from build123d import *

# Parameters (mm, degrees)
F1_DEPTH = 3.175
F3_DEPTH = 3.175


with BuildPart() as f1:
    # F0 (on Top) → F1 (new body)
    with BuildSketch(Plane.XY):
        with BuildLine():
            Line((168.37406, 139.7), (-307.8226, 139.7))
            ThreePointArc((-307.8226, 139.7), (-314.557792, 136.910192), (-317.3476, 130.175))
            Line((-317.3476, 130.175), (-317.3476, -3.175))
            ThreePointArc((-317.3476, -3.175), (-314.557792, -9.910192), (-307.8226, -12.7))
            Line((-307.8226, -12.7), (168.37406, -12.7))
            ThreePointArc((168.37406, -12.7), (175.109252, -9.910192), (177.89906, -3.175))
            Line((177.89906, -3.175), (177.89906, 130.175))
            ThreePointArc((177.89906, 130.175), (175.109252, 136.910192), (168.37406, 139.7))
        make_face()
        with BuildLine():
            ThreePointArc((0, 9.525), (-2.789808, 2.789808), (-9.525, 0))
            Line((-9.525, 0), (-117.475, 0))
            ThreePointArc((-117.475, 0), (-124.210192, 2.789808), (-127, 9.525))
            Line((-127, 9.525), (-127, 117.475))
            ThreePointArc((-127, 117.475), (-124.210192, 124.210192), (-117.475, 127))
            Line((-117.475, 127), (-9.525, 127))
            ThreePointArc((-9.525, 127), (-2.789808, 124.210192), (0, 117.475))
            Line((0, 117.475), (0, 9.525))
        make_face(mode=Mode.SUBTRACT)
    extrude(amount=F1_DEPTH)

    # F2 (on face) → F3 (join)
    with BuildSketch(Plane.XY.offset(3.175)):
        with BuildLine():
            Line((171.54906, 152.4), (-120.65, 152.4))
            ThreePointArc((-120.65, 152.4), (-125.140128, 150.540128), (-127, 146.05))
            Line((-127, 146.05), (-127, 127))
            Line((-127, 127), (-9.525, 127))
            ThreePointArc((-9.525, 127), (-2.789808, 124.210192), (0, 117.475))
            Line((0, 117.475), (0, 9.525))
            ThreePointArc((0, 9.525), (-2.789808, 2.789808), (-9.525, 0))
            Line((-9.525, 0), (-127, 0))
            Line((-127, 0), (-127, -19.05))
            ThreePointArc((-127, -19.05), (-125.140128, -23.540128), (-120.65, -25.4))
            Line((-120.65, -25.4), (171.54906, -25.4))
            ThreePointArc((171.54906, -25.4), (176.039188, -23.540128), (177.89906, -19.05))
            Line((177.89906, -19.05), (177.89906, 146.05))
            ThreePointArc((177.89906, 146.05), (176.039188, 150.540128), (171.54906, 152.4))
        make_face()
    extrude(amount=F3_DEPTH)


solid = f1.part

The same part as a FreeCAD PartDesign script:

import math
import FreeCAD as App
import Part
import Sketcher
Q = App.Units.Quantity

doc = App.newDocument("Part")
body = doc.addObject("PartDesign::Body", "Body")

# Sketch on XY plane
sketch1 = body.newObject("Sketcher::SketchObject", "Sketch")
sketch1.AttachmentSupport = (doc.getObject("XY_Plane"), [""])
sketch1.MapMode = "FlatFace"
sketch1.addGeometry([
    Part.LineSegment(App.Vector(168, 140, 0), App.Vector(-308, 140, 0)),  # 0
    Part.ArcOfCircle(Part.Circle(App.Vector(-308, 130, 0), App.Vector(0, 0, 1), 10), math.radians(90), math.radians(180)),  # 1
    Part.LineSegment(App.Vector(-317, 130, 0), App.Vector(-317, -3, 0)),  # 2
    Part.ArcOfCircle(Part.Circle(App.Vector(-308, -3, 0), App.Vector(0, 0, 1), 10), math.radians(-180), math.radians(-90)),  # 3
    Part.LineSegment(App.Vector(-308, -13, 0), App.Vector(168, -13, 0)),  # 4
    Part.ArcOfCircle(Part.Circle(App.Vector(168, -3, 0), App.Vector(0, 0, 1), 10), math.radians(-90), math.radians(0)),  # 5
    Part.LineSegment(App.Vector(178, -3, 0), App.Vector(178, 130, 0)),  # 6
    Part.ArcOfCircle(Part.Circle(App.Vector(168, 130, 0), App.Vector(0, 0, 1), 10), math.radians(0), math.radians(90)),  # 7
    Part.LineSegment(App.Vector(0, 117, 0), App.Vector(0, 10, 0)),  # 8
    Part.ArcOfCircle(Part.Circle(App.Vector(-10, 10, 0), App.Vector(0, 0, 1), 10), math.radians(-90), math.radians(0)),  # 9
    Part.LineSegment(App.Vector(-10, 0, 0), App.Vector(-117, 0, 0)),  # 10
    Part.ArcOfCircle(Part.Circle(App.Vector(-117, 10, 0), App.Vector(0, 0, 1), 10), math.radians(-180), math.radians(-90)),  # 11
    Part.LineSegment(App.Vector(-127, 10, 0), App.Vector(-127, 117, 0)),  # 12
    Part.ArcOfCircle(Part.Circle(App.Vector(-117, 117, 0), App.Vector(0, 0, 1), 10), math.radians(90), math.radians(180)),  # 13
    Part.LineSegment(App.Vector(-117, 127, 0), App.Vector(-10, 127, 0)),  # 14
    Part.ArcOfCircle(Part.Circle(App.Vector(-10, 117, 0), App.Vector(0, 0, 1), 10), math.radians(0), math.radians(90)),  # 15
], False)
sketch1.addConstraint([
    Sketcher.Constraint("Tangent", 0, 2, 1, 1),
    Sketcher.Constraint("Tangent", 1, 2, 2, 1),
    Sketcher.Constraint("Tangent", 2, 2, 3, 1),
    Sketcher.Constraint("Tangent", 3, 2, 4, 1),
    Sketcher.Constraint("Tangent", 4, 2, 5, 1),
    Sketcher.Constraint("Tangent", 5, 2, 6, 1),
    Sketcher.Constraint("Tangent", 6, 2, 7, 1),
    Sketcher.Constraint("Tangent", 7, 2, 0, 1),
    Sketcher.Constraint("Tangent", 8, 2, 9, 2),
    Sketcher.Constraint("Tangent", 9, 1, 10, 1),
    Sketcher.Constraint("Tangent", 10, 2, 11, 2),
    Sketcher.Constraint("Tangent", 11, 1, 12, 1),
    Sketcher.Constraint("Tangent", 12, 2, 13, 2),
    Sketcher.Constraint("Tangent", 13, 1, 14, 1),
    Sketcher.Constraint("Tangent", 14, 2, 15, 2),
    Sketcher.Constraint("Tangent", 15, 1, 8, 1),
    Sketcher.Constraint("Horizontal", 0),
    Sketcher.Constraint("Vertical", 2),
    Sketcher.Constraint("Horizontal", 4),
    Sketcher.Constraint("Vertical", 6),
    Sketcher.Constraint("Vertical", 8),
    Sketcher.Constraint("Horizontal", 10),
    Sketcher.Constraint("Vertical", 12),
    Sketcher.Constraint("Horizontal", 14),
    Sketcher.Constraint("Equal", 1, 3),
    Sketcher.Constraint("Equal", 3, 5),
    Sketcher.Constraint("Equal", 5, 7),
    Sketcher.Constraint("Equal", 7, 9),
    Sketcher.Constraint("Equal", 9, 11),
    Sketcher.Constraint("Equal", 11, 13),
    Sketcher.Constraint("Equal", 13, 15),
    Sketcher.Constraint("PointOnObject", 8, 2, -2),
    Sketcher.Constraint("PointOnObject", 9, 1, -1),
    Sketcher.Constraint("Equal", 14, 8),
    Sketcher.Constraint("DistanceX", 11, 1, -1, 1, Q("5 in")),
    Sketcher.Constraint("Radius", 1, Q("0.375 in")),
    Sketcher.Constraint("DistanceY", 3, 2, 0, 2, Q("6 in")),
    Sketcher.Constraint("DistanceY", -1, 1, 0, 2, Q("5.5 in")),
    Sketcher.Constraint("DistanceX", 0, 2, 0, 1, Q("18.7479 in")),
    Sketcher.Constraint("DistanceX", 1, 3, -1, 1, Q("12.119 in")),
])
pad1 = body.newObject("PartDesign::Pad", "Pad")
pad1.Profile = sketch1
pad1.Length = Q("0.125 in")

# Sketch on XY plane
sketch2 = body.newObject("Sketcher::SketchObject", "Sketch001")
sketch2.AttachmentSupport = (doc.getObject("XY_Plane"), [""])
sketch2.MapMode = "FlatFace"
sketch2.AttachmentOffset = App.Placement(App.Vector(0, 0, 0.125 * 25.4), App.Rotation())
sketch2.addGeometry([
    Part.LineSegment(App.Vector(172, 152, 0), App.Vector(-121, 152, 0)),  # 0
    Part.ArcOfCircle(Part.Circle(App.Vector(-121, 146, 0), App.Vector(0, 0, 1), 6), math.radians(90), math.radians(180)),  # 1
    Part.LineSegment(App.Vector(-127, 146, 0), App.Vector(-127, 127, 0)),  # 2
    Part.LineSegment(App.Vector(-127, 127, 0), App.Vector(-10, 127, 0)),  # 3
    Part.ArcOfCircle(Part.Circle(App.Vector(-10, 117, 0), App.Vector(0, 0, 1), 10), math.radians(0), math.radians(90)),  # 4
    Part.LineSegment(App.Vector(0, 117, 0), App.Vector(0, 10, 0)),  # 5
    Part.ArcOfCircle(Part.Circle(App.Vector(-10, 10, 0), App.Vector(0, 0, 1), 10), math.radians(-90), math.radians(0)),  # 6
    Part.LineSegment(App.Vector(-10, 0, 0), App.Vector(-127, 0, 0)),  # 7
    Part.LineSegment(App.Vector(-127, 0, 0), App.Vector(-127, -19, 0)),  # 8
    Part.ArcOfCircle(Part.Circle(App.Vector(-121, -19, 0), App.Vector(0, 0, 1), 6), math.radians(-180), math.radians(-90)),  # 9
    Part.LineSegment(App.Vector(-121, -25, 0), App.Vector(172, -25, 0)),  # 10
    Part.ArcOfCircle(Part.Circle(App.Vector(172, -19, 0), App.Vector(0, 0, 1), 6), math.radians(-90), math.radians(0)),  # 11
    Part.LineSegment(App.Vector(178, -19, 0), App.Vector(178, 146, 0)),  # 12
    Part.ArcOfCircle(Part.Circle(App.Vector(172, 146, 0), App.Vector(0, 0, 1), 6), math.radians(0), math.radians(90)),  # 13
], False)
sketch2.addConstraint([
    Sketcher.Constraint("Tangent", 0, 2, 1, 1),
    Sketcher.Constraint("Tangent", 1, 2, 2, 1),
    Sketcher.Constraint("Coincident", 2, 2, 3, 1),
    Sketcher.Constraint("Tangent", 3, 2, 4, 2),
    Sketcher.Constraint("Tangent", 4, 1, 5, 1),
    Sketcher.Constraint("Tangent", 5, 2, 6, 2),
    Sketcher.Constraint("Tangent", 6, 1, 7, 1),
    Sketcher.Constraint("Coincident", 7, 2, 8, 1),
    Sketcher.Constraint("Tangent", 8, 2, 9, 1),
    Sketcher.Constraint("Tangent", 9, 2, 10, 1),
    Sketcher.Constraint("Tangent", 10, 2, 11, 1),
    Sketcher.Constraint("Tangent", 11, 2, 12, 1),
    Sketcher.Constraint("Tangent", 12, 2, 13, 1),
    Sketcher.Constraint("Tangent", 13, 2, 0, 1),
    Sketcher.Constraint("Horizontal", 0),
    Sketcher.Constraint("Vertical", 2),
    Sketcher.Constraint("Horizontal", 3),
    Sketcher.Constraint("Vertical", 5),
    Sketcher.Constraint("Horizontal", 7),
    Sketcher.Constraint("Vertical", 8),
    Sketcher.Constraint("Horizontal", 10),
    Sketcher.Constraint("Vertical", 12),
    Sketcher.Constraint("Equal", 4, 6),
    Sketcher.Constraint("Equal", 1, 9),
    Sketcher.Constraint("Equal", 9, 11),
    Sketcher.Constraint("Equal", 11, 13),
    Sketcher.Constraint("PointOnObject", 4, 1, -2),
    Sketcher.Constraint("PointOnObject", 6, 1, -1),
    Sketcher.Constraint("Vertical", 1, 3, 9, 3),
    Sketcher.Constraint("Equal", 2, 8),
    Sketcher.Constraint("Radius", 1, Q("0.25 in")),
    Sketcher.Constraint("DistanceY", 12, 1, 12, 2, Q("6.5 in")),
    Sketcher.Constraint("DistanceY", -1, 1, 0, 2, Q("6 in")),
    Sketcher.Constraint("DistanceX", 1, 2, -1, 1, Q("5 in")),
    Sketcher.Constraint("Radius", 4, Q("0.375 in")),
    Sketcher.Constraint("DistanceX", 0, 2, 0, 1, Q("11.5039 in")),
])
pad2 = body.newObject("PartDesign::Pad", "Pad001")
pad2.Profile = sketch2
pad2.Length = Q("0.125 in")

doc.recompute()
